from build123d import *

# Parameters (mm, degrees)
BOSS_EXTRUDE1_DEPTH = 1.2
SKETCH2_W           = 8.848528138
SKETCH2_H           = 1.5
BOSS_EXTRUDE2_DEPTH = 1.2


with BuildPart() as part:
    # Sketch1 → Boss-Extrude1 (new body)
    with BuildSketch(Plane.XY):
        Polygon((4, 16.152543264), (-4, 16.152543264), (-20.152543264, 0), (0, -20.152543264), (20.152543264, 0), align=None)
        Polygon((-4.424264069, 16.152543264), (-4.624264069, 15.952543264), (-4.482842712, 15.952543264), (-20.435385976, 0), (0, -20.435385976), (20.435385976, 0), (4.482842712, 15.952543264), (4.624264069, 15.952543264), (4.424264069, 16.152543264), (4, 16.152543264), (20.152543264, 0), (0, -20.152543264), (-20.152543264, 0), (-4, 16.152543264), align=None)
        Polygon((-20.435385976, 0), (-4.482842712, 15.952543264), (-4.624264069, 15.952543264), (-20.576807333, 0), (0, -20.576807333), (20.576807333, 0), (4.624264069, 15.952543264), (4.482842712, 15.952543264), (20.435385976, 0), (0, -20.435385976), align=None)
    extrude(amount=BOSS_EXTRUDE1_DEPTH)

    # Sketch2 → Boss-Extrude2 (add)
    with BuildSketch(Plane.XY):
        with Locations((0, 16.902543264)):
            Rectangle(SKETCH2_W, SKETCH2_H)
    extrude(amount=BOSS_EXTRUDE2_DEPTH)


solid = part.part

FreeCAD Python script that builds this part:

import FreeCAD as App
import Part
import Sketcher
Q = App.Units.Quantity

doc = App.newDocument("Part")
body = doc.addObject("PartDesign::Body", "Body")

sketch1 = doc.addObject("Sketcher::SketchObject", "Sketch")
body.addObject(sketch1)
sketch1.AttachmentSupport = (doc.XY_Plane, [""])
sketch1.MapMode = "FlatFace"
sketch1.addGeometry([
    Part.LineSegment(App.Vector(-4, 16, 0), App.Vector(-21, 0, 0)),
    Part.LineSegment(App.Vector(-21, 0, 0), App.Vector(0, -21, 0)),
    Part.LineSegment(App.Vector(0, -21, 0), App.Vector(21, 0, 0)),
    Part.LineSegment(App.Vector(21, 0, 0), App.Vector(4, 16, 0)),
    Part.LineSegment(App.Vector(4, 16, 0), App.Vector(-4, 16, 0)),
], False)
sketch1.addConstraint([
    Sketcher.Constraint("Coincident", 0, 2, 1, 1),
    Sketcher.Constraint("Coincident", 1, 2, 2, 1),
    Sketcher.Constraint("Coincident", 2, 2, 3, 1),
    Sketcher.Constraint("Coincident", 3, 2, 4, 1),
    Sketcher.Constraint("Coincident", 4, 2, 0, 1),
    Sketcher.Constraint("Horizontal", 4),
    Sketcher.Constraint("Symmetric", 0, 2, 2, 2, -1, 1),
    Sketcher.Constraint("PointOnObject", 0, 2, -1),
    Sketcher.Constraint("PointOnObject", 1, 2, -2),
    Sketcher.Constraint("Perpendicular", 0, 1),
    Sketcher.Constraint("Perpendicular", 1, 2),
    Sketcher.Constraint("Perpendicular", 2, 3),
    Sketcher.Constraint("Distance", 1, Q("29.1 mm")),
    Sketcher.Constraint("DistanceX", 4, 2, 4, 1, Q("8.848528 mm")),
])
pad1 = doc.addObject("PartDesign::Pad", "Pad")
body.addObject(pad1)
pad1.Profile = sketch1
pad1.Length = 1.2

sketch2 = doc.addObject("Sketcher::SketchObject", "Sketch001")
body.addObject(sketch2)
sketch2.AttachmentSupport = (doc.XY_Plane, [""])
sketch2.MapMode = "FlatFace"
sketch2.addGeometry([
    Part.LineSegment(App.Vector(-4.4, 17.7, 0), App.Vector(-4.4, 16.2, 0)),
    Part.LineSegment(App.Vector(-4.4, 16.2, 0), App.Vector(4.4, 16.2, 0)),
    Part.LineSegment(App.Vector(4.4, 16.2, 0), App.Vector(4.4, 17.7, 0)),
    Part.LineSegment(App.Vector(4.4, 17.7, 0), App.Vector(-4.4, 17.7, 0)),
], False)
sketch2.addConstraint([
    Sketcher.Constraint("Coincident", 0, 2, 1, 1),
    Sketcher.Constraint("Coincident", 1, 2, 2, 1),
    Sketcher.Constraint("Coincident", 2, 2, 3, 1),
    Sketcher.Constraint("Coincident", 3, 2, 0, 1),
    Sketcher.Constraint("Vertical", 0),
    Sketcher.Constraint("Horizontal", 1),
    Sketcher.Constraint("Vertical", 2),
    Sketcher.Constraint("Horizontal", 3),
    Sketcher.Constraint("DistanceY", 0, 2, 0, 1, Q("1.5 mm")),
    Sketcher.Constraint("DistanceX", 1, 1, 1, 2, Q("8.848528 mm")),
    Sketcher.Constraint("DistanceX", 0, 2, -1, 1, Q("4.424264 mm")),
    Sketcher.Constraint("DistanceY", -1, 1, 0, 2, Q("16.152543 mm")),
])
pad2 = doc.addObject("PartDesign::Pad", "Pad001")
body.addObject(pad2)
pad2.Profile = sketch2
pad2.Length = 1.2

doc.recompute()
